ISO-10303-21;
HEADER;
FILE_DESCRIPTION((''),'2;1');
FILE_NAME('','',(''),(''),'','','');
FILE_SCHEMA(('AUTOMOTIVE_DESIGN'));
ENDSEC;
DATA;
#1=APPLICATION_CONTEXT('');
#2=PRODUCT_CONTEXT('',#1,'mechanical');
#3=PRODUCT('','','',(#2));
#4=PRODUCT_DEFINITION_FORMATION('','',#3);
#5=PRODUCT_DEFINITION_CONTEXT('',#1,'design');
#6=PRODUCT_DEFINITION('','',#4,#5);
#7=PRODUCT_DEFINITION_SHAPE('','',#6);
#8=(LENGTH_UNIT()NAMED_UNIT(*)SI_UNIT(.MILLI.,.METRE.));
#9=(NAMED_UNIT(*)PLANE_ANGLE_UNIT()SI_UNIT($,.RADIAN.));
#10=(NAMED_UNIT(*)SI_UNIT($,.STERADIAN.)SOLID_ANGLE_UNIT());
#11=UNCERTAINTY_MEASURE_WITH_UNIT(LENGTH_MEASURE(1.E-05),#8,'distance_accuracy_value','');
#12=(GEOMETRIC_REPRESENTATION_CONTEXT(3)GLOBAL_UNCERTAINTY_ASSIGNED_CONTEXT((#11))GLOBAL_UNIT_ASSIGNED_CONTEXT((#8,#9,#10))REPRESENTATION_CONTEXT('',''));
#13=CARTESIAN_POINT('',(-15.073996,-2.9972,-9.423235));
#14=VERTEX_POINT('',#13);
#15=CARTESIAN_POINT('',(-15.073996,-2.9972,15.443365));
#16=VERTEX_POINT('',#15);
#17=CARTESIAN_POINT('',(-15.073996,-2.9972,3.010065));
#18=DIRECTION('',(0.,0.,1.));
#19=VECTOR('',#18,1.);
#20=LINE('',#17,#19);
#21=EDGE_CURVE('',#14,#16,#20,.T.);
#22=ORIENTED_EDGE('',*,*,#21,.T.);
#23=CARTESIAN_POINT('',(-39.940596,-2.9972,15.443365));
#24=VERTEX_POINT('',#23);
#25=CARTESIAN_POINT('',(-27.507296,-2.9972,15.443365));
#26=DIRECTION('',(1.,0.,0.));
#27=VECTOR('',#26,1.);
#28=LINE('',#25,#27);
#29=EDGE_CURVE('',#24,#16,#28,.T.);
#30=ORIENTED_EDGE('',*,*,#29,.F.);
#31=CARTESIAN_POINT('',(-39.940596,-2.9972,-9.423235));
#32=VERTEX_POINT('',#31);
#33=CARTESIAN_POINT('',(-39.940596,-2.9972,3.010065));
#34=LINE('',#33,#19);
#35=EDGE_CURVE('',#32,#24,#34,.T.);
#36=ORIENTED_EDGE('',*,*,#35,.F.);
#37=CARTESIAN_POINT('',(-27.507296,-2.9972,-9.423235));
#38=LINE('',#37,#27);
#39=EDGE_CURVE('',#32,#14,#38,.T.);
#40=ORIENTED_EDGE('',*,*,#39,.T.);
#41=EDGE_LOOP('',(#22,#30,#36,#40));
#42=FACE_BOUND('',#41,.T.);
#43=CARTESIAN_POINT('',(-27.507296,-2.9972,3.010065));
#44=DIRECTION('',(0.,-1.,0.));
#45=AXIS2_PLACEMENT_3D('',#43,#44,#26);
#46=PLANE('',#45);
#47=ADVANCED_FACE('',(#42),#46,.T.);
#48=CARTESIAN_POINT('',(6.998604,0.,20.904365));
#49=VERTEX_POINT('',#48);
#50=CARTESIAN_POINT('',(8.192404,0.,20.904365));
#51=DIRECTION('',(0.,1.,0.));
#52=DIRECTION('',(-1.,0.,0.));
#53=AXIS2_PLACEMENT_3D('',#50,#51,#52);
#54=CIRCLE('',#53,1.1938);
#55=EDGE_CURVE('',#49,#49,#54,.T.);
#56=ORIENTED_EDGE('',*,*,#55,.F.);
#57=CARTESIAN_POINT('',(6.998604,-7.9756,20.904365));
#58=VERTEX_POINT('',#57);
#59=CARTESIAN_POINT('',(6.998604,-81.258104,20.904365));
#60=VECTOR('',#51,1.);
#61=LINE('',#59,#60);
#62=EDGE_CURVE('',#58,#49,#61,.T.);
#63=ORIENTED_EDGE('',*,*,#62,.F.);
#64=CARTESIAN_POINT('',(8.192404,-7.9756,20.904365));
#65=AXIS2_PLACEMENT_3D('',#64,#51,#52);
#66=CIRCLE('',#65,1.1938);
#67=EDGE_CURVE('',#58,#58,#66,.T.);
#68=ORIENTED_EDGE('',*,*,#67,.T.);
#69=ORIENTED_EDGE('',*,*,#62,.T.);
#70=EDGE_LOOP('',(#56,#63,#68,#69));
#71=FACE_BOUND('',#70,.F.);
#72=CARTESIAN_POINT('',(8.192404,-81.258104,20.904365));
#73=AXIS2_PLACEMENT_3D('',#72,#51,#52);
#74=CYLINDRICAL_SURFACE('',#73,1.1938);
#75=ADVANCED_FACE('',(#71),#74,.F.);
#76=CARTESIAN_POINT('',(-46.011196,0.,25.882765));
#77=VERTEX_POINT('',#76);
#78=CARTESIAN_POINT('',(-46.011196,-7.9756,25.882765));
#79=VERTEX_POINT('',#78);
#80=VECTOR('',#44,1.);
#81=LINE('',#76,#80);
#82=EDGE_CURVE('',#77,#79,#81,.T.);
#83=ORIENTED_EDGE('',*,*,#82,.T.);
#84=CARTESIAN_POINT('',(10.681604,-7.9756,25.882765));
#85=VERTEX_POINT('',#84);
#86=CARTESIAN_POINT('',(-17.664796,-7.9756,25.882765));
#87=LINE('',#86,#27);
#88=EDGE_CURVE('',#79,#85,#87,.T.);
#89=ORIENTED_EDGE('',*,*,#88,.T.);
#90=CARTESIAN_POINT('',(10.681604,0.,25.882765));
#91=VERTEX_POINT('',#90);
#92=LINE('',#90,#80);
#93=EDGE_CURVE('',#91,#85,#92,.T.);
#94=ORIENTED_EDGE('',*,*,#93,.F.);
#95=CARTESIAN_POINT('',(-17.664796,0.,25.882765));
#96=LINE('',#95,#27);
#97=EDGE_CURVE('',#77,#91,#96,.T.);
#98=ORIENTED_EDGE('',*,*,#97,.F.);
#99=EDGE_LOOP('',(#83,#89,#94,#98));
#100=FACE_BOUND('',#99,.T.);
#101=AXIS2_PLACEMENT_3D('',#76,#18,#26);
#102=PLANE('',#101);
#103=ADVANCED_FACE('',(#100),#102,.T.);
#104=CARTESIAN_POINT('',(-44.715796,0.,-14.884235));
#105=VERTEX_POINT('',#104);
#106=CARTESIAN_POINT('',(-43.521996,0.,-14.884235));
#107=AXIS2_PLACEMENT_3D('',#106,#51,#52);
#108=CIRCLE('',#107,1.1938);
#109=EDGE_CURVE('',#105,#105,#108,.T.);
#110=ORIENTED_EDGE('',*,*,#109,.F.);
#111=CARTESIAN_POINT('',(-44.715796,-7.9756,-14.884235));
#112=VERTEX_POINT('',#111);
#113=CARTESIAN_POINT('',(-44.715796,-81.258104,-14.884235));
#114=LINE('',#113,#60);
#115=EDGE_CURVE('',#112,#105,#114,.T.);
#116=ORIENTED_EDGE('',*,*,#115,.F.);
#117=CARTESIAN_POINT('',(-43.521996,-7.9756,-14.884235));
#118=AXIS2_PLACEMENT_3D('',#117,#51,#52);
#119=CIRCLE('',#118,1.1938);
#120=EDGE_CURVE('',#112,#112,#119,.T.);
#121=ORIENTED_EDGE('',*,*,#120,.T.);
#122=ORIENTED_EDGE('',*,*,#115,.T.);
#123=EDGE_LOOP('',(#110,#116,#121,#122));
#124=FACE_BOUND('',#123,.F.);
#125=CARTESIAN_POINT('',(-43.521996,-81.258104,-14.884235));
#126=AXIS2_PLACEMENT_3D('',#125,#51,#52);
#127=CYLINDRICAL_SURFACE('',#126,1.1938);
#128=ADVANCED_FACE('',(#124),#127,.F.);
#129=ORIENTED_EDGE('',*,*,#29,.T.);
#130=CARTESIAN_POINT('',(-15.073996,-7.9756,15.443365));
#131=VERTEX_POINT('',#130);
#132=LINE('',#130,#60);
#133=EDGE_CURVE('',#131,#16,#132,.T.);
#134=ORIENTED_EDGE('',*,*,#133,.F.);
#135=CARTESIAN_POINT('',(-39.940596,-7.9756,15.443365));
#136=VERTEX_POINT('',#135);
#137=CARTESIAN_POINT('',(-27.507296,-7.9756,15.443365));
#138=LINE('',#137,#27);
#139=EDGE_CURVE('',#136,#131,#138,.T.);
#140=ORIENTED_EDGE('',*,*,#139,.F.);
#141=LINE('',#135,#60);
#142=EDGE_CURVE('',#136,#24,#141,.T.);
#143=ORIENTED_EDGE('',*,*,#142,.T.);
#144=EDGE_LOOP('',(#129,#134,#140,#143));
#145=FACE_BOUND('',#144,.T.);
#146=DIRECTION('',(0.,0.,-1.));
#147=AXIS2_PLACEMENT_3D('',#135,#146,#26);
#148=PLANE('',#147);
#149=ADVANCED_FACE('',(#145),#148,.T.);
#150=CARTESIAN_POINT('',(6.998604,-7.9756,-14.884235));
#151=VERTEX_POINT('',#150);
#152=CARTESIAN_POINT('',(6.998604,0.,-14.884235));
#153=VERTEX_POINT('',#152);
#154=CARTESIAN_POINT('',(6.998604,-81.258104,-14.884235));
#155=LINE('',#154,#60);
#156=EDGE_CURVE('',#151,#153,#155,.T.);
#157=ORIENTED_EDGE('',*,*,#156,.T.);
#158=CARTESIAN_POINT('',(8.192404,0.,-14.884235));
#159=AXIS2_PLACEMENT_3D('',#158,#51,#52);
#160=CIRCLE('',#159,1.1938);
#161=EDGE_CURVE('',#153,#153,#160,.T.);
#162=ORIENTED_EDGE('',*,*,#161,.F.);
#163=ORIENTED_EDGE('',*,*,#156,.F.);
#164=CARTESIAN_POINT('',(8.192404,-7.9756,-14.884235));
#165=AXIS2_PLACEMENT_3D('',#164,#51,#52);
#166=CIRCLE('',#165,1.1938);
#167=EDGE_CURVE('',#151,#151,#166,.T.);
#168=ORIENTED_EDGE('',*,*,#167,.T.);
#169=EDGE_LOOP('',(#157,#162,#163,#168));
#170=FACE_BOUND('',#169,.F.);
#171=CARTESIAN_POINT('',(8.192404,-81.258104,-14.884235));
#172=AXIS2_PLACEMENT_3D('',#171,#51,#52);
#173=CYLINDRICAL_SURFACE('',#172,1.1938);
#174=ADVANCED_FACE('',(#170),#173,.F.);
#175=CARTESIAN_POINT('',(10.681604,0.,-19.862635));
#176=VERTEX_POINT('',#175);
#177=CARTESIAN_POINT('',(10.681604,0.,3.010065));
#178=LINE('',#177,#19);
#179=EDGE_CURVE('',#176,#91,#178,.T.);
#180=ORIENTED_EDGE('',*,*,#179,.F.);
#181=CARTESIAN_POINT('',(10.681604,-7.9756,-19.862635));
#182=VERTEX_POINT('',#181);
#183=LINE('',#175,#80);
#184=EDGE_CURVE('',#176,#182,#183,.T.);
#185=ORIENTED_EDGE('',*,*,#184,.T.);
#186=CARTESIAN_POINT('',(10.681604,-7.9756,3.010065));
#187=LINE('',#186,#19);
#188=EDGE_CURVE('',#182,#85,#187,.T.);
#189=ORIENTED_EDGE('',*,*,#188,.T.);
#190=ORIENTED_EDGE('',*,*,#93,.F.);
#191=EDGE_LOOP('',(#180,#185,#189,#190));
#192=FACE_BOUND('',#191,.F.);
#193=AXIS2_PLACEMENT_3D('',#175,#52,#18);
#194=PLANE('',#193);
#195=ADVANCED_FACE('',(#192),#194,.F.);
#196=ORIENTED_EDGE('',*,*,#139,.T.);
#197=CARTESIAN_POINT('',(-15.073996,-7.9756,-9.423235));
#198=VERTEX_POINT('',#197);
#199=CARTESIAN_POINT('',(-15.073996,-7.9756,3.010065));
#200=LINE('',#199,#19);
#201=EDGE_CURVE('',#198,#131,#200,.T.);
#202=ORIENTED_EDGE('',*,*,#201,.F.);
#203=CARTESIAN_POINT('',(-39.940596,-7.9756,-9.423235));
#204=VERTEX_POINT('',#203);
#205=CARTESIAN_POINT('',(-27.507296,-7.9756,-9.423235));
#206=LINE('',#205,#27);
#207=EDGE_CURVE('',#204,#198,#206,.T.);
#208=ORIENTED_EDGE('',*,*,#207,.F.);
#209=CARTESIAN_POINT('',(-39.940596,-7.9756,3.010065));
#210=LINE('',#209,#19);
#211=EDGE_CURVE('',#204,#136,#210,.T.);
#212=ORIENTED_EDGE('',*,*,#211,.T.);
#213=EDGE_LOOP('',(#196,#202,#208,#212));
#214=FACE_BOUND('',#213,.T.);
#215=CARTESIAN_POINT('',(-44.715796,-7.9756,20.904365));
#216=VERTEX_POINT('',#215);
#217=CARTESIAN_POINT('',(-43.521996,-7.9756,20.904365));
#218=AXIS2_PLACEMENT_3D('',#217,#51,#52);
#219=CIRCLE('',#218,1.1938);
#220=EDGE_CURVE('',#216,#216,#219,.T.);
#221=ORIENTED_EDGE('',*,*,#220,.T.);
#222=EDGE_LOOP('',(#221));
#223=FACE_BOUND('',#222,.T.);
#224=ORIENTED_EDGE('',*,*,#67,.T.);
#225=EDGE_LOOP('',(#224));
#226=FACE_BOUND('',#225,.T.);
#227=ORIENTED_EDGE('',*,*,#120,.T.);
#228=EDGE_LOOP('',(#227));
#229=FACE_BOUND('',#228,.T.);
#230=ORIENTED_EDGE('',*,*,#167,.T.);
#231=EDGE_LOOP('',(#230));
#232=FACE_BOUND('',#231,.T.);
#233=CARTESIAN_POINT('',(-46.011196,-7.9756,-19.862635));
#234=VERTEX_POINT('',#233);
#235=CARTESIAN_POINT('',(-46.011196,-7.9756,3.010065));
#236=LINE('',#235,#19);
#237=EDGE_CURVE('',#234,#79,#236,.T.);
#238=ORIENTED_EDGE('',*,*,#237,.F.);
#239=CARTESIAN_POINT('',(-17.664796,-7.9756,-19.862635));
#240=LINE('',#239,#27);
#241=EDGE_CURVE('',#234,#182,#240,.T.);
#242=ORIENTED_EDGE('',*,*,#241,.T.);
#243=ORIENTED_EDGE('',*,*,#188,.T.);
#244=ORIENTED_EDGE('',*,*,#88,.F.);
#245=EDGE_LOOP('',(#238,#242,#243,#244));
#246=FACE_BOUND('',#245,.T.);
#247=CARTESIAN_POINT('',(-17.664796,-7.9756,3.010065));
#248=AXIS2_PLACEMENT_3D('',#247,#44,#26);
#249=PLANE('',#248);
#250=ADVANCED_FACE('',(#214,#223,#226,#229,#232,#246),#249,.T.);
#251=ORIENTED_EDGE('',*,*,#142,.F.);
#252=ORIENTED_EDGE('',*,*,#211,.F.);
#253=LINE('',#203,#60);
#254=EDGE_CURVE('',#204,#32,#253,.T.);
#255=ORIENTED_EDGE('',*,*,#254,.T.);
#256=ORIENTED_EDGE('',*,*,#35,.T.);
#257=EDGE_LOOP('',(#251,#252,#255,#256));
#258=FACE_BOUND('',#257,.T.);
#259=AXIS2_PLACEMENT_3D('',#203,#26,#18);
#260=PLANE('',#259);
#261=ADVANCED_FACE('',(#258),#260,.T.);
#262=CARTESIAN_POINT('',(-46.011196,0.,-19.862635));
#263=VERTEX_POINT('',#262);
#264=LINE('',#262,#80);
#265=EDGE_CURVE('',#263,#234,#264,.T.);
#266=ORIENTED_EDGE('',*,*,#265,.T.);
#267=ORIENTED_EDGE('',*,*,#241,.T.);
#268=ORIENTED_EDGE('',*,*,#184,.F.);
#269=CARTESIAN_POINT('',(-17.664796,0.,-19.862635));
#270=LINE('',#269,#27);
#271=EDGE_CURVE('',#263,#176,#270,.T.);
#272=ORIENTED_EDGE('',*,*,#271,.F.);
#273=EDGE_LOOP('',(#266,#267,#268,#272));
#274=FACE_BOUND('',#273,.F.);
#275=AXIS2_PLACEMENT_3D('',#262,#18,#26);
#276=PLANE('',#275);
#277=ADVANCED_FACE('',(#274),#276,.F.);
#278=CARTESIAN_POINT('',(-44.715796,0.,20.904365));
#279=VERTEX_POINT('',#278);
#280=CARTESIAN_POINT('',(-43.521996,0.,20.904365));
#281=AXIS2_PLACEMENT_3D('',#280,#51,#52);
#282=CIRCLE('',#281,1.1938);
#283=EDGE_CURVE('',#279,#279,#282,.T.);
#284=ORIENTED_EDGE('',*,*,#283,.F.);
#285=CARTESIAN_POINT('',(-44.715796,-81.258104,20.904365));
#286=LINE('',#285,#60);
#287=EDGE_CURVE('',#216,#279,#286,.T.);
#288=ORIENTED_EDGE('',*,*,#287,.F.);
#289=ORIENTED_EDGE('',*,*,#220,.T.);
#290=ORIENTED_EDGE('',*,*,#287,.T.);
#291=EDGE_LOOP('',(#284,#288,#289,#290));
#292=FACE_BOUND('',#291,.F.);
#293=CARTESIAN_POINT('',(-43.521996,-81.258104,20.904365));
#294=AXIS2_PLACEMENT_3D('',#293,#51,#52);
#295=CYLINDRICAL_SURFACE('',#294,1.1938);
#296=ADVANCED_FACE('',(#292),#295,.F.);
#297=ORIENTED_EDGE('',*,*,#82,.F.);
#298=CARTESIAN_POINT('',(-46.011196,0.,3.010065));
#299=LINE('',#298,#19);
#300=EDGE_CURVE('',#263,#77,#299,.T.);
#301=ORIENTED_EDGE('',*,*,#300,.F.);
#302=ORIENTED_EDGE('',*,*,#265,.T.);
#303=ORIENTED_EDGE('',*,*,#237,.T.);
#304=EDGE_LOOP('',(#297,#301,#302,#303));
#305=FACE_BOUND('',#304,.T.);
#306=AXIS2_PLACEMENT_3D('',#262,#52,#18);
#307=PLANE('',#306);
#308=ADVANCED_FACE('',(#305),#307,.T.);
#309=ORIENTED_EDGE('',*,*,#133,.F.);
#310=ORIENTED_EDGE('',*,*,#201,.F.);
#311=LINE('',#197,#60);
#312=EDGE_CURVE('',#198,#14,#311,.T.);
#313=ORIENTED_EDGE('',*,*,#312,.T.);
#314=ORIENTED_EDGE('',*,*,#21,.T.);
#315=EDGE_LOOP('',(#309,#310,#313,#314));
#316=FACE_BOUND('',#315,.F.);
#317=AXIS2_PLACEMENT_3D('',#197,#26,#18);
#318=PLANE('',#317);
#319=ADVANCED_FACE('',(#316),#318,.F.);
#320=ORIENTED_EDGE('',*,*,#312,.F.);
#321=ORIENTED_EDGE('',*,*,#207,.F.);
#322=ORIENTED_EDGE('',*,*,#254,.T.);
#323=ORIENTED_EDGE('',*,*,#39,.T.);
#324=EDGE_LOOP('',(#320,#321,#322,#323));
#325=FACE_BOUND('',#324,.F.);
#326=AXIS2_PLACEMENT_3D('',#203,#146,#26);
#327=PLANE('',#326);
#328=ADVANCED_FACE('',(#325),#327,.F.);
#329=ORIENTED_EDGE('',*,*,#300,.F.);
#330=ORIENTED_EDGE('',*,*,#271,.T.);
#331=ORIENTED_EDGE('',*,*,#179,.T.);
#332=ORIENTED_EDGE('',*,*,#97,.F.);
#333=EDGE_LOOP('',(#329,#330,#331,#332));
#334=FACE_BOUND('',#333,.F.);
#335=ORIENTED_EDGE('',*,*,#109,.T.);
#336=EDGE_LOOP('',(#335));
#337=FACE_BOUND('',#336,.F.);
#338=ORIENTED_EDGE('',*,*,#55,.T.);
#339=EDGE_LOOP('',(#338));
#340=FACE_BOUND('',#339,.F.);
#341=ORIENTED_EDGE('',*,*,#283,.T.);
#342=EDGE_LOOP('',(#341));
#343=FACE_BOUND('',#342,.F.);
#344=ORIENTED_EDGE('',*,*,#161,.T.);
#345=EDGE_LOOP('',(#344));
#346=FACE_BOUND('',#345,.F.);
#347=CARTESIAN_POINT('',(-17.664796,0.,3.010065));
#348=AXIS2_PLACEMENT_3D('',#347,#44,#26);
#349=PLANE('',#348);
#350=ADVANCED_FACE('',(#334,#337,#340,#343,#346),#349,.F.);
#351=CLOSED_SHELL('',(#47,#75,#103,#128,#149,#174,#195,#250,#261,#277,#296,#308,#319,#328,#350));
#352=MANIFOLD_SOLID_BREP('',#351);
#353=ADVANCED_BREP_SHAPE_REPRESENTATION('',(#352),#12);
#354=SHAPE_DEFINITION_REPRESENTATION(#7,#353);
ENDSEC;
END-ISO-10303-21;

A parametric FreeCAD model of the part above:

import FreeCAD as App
import Part
import Sketcher
Q = App.Units.Quantity


def add_polygon(sketch, points):
    """Adds a closed chain of lines whose ends are joined by coincident constraints."""
    first, n = sketch.GeometryCount, len(points)
    for a, b in zip(points, points[1:] + points[:1]):
        sketch.addGeometry(Part.LineSegment(App.Vector(*a, 0), App.Vector(*b, 0)), False)
    for i in range(n):
        sketch.addConstraint(Sketcher.Constraint("Coincident", first + i, 2, first + (i + 1) % n, 1))

doc = App.newDocument("Part")
params = doc.addObject("Spreadsheet::Sheet", "Params")
for row, (alias, value) in enumerate([
    ("sketch1_width", "2.232 in"),
    ("sketch1_height", "1.801 in"),
    ("pad1_length", "0.314 in"),
    ("sketch2_diameter", "0.094 in"),
    ("hole_diameter", "0.094 in"),
    ("sketch3_width", "0.979 in"),
    ("pocket1_length", "0.196 in"),
], start=1):
    params.set(f"A{row}", alias)
    params.set(f"B{row}", "=" + value)
    params.setAlias(f"B{row}", alias)

body = doc.addObject("PartDesign::Body", "Body")

# Sketch on XZ plane
sketch1 = body.newObject("Sketcher::SketchObject", "Sketch")
sketch1.AttachmentSupport = (doc.getObject("XZ_Plane"), [""])
sketch1.MapMode = "FlatFace"
add_polygon(sketch1, [(-46, 26), (-46, -20), (11, -20), (11, 26)])  # lines 0-3
sketch1.addConstraint([
    Sketcher.Constraint("Vertical", 0),
    Sketcher.Constraint("Horizontal", 1),
    Sketcher.Constraint("Vertical", 2),
    Sketcher.Constraint("Horizontal", 3),
    Sketcher.Constraint("DistanceX", 1, 1, 1, 2, Q("2.232 in")),
    Sketcher.Constraint("DistanceY", 0, 2, 0, 1, Q("1.801 in")),
    Sketcher.Constraint("DistanceX", 0, 2, -1, 1, 46.011196),
    Sketcher.Constraint("DistanceY", 0, 2, -1, 1, 19.862635),
])
sketch1.setExpression("Constraints[8]", "Params.sketch1_width")
sketch1.setExpression("Constraints[9]", "Params.sketch1_height")
pad1 = body.newObject("PartDesign::Pad", "Pad")
pad1.Profile = sketch1
pad1.setExpression("Length", "Params.pad1_length")

# Sketch on XZ plane
sketch2 = body.newObject("Sketcher::SketchObject", "Sketch001")
sketch2.AttachmentSupport = (doc.getObject("XZ_Plane"), [""])
sketch2.MapMode = "FlatFace"
sketch2.AttachmentOffset = App.Placement(App.Vector(0, 0, 0.314 * 25.4), App.Rotation())
sketch2.addGeometry([
    Part.Circle(App.Vector(-43.5, 20.9, 0), App.Vector(0, 0, 1), 1.2),
    Part.Circle(App.Vector(8.2, 20.9, 0), App.Vector(0, 0, 1), 1.2),
    Part.Circle(App.Vector(8.2, -14.9, 0), App.Vector(0, 0, 1), 1.2),
    Part.Circle(App.Vector(-43.5, -14.9, 0), App.Vector(0, 0, 1), 1.2),
], False)
sketch2.addConstraint([
    Sketcher.Constraint("Equal", 0, 1),
    Sketcher.Constraint("Equal", 1, 2),
    Sketcher.Constraint("Equal", 2, 3),
    Sketcher.Constraint("Horizontal", 0, 3, 1, 3),
    Sketcher.Constraint("Horizontal", 2, 3, 3, 3),
    Sketcher.Constraint("Vertical", 1, 3, 2, 3),
    Sketcher.Constraint("Vertical", 0, 3, 3, 3),
    Sketcher.Constraint("Diameter", 0, Q("0.094 in")),
    Sketcher.Constraint("DistanceX", 0, 3, 1, 3, Q("2.036 in")),
    Sketcher.Constraint("DistanceY", 2, 3, 1, 3, Q("1.409 in")),
    Sketcher.Constraint("DistanceX", 0, 3, -1, 1, 43.521996),
    Sketcher.Constraint("DistanceY", -1, 1, 0, 3, 20.904365),
])
sketch2.setExpression("Constraints[7]", "Params.sketch2_diameter")
doc.recompute()
hole = body.newObject("PartDesign::Hole", "Hole")
hole.Profile = sketch2
hole.ThreadType = "None"
hole.setExpression("Diameter", "Params.hole_diameter")
hole.DepthType = "ThroughAll"

# Sketch on XZ plane
sketch3 = body.newObject("Sketcher::SketchObject", "Sketch002")
sketch3.AttachmentSupport = (doc.getObject("XZ_Plane"), [""])
sketch3.MapMode = "FlatFace"
sketch3.AttachmentOffset = App.Placement(App.Vector(0, 0, 0.314 * 25.4), App.Rotation())
add_polygon(sketch3, [(-40, 15), (-40, -9), (-15, -9), (-15, 15)])  # lines 0-3
sketch3.addConstraint([
    Sketcher.Constraint("Vertical", 0),
    Sketcher.Constraint("Horizontal", 1),
    Sketcher.Constraint("Vertical", 2),
    Sketcher.Constraint("Horizontal", 3),
    Sketcher.Constraint("Equal", 3, 0),
    Sketcher.Constraint("DistanceX", 1, 1, 1, 2, Q("0.979 in")),
    Sketcher.Constraint("DistanceX", 0, 2, -1, 1, 39.940596),
    Sketcher.Constraint("DistanceY", 0, 2, -1, 1, 9.423235),
])
sketch3.setExpression("Constraints[9]", "Params.sketch3_width")
pocket1 = body.newObject("PartDesign::Pocket", "Pocket")
pocket1.Profile = sketch3
pocket1.setExpression("Length", "Params.pocket1_length")

doc.recompute()
